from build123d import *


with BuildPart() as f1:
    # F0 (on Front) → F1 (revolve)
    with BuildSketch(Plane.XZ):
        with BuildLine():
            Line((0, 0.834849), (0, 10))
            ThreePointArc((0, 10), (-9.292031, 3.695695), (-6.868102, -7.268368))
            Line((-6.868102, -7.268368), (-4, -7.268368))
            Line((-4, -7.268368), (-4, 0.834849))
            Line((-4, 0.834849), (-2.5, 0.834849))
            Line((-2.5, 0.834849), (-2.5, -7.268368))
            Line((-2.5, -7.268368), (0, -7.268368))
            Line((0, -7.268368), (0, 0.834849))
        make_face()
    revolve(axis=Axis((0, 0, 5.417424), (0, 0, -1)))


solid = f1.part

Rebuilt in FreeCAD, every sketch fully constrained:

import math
import FreeCAD as App
import Part
import Sketcher

doc = App.newDocument("Part")
body = doc.addObject("PartDesign::Body", "Body")

# Sketch on XZ plane
sketch1 = body.newObject("Sketcher::SketchObject", "Sketch")
sketch1.AttachmentSupport = (doc.getObject("XZ_Plane"), [""])
sketch1.MapMode = "FlatFace"
sketch1.addGeometry([
    Part.ArcOfCircle(Part.Circle(App.Vector(0, 0, 0), App.Vector(0, 0, 1), 10), math.radians(90), math.radians(227)),  # 0
    Part.LineSegment(App.Vector(-6.9, -7.3, 0), App.Vector(-4, -7.3, 0)),  # 1
    Part.LineSegment(App.Vector(-4, -7.3, 0), App.Vector(-4, 0.8, 0)),  # 2
    Part.LineSegment(App.Vector(-4, 0.8, 0), App.Vector(-2.5, 0.8, 0)),  # 3
    Part.LineSegment(App.Vector(-2.5, 0.8, 0), App.Vector(-2.5, -7.3, 0)),  # 4
    Part.LineSegment(App.Vector(-2.5, -7.3, 0), App.Vector(0, -7.3, 0)),  # 5
    Part.LineSegment(App.Vector(0, -7.3, 0), App.Vector(0, 10, 0)),  # 6
], False)
sketch1.addConstraint([
    Sketcher.Constraint("Coincident", 0, 2, 1, 1),
    Sketcher.Constraint("Coincident", 1, 2, 2, 1),
    Sketcher.Constraint("Coincident", 2, 2, 3, 1),
    Sketcher.Constraint("Coincident", 3, 2, 4, 1),
    Sketcher.Constraint("Coincident", 4, 2, 5, 1),
    Sketcher.Constraint("Coincident", 5, 2, 6, 1),
    Sketcher.Constraint("Coincident", 6, 2, 0, 1),
    Sketcher.Constraint("Horizontal", 1),
    Sketcher.Constraint("Vertical", 2),
    Sketcher.Constraint("Horizontal", 3),
    Sketcher.Constraint("Vertical", 4),
    Sketcher.Constraint("Horizontal", 5),
    Sketcher.Constraint("Vertical", 6),
    Sketcher.Constraint("Coincident", 0, 3, -1, 1),
    Sketcher.Constraint("PointOnObject", 5, 2, -2),
    Sketcher.Constraint("Horizontal", 1, 2, 4, 2),
    Sketcher.Constraint("Radius", 0, 10.0),
    Sketcher.Constraint("DistanceX", 3, 1, 3, 2, 1.5),
    Sketcher.Constraint("DistanceX", 5, 1, 5, 2, 2.5),
    Sketcher.Constraint("DistanceX", 0, 2, -1, 1, 6.868102),
    Sketcher.Constraint("DistanceY", 2, 1, 2, 2, 8.103217),
])
revolution = body.newObject("PartDesign::Revolution", "Revolution")
revolution.Profile = sketch1
revolution.ReferenceAxis = (sketch1, ["V_Axis"])
revolution.Angle = 360

doc.recompute()
